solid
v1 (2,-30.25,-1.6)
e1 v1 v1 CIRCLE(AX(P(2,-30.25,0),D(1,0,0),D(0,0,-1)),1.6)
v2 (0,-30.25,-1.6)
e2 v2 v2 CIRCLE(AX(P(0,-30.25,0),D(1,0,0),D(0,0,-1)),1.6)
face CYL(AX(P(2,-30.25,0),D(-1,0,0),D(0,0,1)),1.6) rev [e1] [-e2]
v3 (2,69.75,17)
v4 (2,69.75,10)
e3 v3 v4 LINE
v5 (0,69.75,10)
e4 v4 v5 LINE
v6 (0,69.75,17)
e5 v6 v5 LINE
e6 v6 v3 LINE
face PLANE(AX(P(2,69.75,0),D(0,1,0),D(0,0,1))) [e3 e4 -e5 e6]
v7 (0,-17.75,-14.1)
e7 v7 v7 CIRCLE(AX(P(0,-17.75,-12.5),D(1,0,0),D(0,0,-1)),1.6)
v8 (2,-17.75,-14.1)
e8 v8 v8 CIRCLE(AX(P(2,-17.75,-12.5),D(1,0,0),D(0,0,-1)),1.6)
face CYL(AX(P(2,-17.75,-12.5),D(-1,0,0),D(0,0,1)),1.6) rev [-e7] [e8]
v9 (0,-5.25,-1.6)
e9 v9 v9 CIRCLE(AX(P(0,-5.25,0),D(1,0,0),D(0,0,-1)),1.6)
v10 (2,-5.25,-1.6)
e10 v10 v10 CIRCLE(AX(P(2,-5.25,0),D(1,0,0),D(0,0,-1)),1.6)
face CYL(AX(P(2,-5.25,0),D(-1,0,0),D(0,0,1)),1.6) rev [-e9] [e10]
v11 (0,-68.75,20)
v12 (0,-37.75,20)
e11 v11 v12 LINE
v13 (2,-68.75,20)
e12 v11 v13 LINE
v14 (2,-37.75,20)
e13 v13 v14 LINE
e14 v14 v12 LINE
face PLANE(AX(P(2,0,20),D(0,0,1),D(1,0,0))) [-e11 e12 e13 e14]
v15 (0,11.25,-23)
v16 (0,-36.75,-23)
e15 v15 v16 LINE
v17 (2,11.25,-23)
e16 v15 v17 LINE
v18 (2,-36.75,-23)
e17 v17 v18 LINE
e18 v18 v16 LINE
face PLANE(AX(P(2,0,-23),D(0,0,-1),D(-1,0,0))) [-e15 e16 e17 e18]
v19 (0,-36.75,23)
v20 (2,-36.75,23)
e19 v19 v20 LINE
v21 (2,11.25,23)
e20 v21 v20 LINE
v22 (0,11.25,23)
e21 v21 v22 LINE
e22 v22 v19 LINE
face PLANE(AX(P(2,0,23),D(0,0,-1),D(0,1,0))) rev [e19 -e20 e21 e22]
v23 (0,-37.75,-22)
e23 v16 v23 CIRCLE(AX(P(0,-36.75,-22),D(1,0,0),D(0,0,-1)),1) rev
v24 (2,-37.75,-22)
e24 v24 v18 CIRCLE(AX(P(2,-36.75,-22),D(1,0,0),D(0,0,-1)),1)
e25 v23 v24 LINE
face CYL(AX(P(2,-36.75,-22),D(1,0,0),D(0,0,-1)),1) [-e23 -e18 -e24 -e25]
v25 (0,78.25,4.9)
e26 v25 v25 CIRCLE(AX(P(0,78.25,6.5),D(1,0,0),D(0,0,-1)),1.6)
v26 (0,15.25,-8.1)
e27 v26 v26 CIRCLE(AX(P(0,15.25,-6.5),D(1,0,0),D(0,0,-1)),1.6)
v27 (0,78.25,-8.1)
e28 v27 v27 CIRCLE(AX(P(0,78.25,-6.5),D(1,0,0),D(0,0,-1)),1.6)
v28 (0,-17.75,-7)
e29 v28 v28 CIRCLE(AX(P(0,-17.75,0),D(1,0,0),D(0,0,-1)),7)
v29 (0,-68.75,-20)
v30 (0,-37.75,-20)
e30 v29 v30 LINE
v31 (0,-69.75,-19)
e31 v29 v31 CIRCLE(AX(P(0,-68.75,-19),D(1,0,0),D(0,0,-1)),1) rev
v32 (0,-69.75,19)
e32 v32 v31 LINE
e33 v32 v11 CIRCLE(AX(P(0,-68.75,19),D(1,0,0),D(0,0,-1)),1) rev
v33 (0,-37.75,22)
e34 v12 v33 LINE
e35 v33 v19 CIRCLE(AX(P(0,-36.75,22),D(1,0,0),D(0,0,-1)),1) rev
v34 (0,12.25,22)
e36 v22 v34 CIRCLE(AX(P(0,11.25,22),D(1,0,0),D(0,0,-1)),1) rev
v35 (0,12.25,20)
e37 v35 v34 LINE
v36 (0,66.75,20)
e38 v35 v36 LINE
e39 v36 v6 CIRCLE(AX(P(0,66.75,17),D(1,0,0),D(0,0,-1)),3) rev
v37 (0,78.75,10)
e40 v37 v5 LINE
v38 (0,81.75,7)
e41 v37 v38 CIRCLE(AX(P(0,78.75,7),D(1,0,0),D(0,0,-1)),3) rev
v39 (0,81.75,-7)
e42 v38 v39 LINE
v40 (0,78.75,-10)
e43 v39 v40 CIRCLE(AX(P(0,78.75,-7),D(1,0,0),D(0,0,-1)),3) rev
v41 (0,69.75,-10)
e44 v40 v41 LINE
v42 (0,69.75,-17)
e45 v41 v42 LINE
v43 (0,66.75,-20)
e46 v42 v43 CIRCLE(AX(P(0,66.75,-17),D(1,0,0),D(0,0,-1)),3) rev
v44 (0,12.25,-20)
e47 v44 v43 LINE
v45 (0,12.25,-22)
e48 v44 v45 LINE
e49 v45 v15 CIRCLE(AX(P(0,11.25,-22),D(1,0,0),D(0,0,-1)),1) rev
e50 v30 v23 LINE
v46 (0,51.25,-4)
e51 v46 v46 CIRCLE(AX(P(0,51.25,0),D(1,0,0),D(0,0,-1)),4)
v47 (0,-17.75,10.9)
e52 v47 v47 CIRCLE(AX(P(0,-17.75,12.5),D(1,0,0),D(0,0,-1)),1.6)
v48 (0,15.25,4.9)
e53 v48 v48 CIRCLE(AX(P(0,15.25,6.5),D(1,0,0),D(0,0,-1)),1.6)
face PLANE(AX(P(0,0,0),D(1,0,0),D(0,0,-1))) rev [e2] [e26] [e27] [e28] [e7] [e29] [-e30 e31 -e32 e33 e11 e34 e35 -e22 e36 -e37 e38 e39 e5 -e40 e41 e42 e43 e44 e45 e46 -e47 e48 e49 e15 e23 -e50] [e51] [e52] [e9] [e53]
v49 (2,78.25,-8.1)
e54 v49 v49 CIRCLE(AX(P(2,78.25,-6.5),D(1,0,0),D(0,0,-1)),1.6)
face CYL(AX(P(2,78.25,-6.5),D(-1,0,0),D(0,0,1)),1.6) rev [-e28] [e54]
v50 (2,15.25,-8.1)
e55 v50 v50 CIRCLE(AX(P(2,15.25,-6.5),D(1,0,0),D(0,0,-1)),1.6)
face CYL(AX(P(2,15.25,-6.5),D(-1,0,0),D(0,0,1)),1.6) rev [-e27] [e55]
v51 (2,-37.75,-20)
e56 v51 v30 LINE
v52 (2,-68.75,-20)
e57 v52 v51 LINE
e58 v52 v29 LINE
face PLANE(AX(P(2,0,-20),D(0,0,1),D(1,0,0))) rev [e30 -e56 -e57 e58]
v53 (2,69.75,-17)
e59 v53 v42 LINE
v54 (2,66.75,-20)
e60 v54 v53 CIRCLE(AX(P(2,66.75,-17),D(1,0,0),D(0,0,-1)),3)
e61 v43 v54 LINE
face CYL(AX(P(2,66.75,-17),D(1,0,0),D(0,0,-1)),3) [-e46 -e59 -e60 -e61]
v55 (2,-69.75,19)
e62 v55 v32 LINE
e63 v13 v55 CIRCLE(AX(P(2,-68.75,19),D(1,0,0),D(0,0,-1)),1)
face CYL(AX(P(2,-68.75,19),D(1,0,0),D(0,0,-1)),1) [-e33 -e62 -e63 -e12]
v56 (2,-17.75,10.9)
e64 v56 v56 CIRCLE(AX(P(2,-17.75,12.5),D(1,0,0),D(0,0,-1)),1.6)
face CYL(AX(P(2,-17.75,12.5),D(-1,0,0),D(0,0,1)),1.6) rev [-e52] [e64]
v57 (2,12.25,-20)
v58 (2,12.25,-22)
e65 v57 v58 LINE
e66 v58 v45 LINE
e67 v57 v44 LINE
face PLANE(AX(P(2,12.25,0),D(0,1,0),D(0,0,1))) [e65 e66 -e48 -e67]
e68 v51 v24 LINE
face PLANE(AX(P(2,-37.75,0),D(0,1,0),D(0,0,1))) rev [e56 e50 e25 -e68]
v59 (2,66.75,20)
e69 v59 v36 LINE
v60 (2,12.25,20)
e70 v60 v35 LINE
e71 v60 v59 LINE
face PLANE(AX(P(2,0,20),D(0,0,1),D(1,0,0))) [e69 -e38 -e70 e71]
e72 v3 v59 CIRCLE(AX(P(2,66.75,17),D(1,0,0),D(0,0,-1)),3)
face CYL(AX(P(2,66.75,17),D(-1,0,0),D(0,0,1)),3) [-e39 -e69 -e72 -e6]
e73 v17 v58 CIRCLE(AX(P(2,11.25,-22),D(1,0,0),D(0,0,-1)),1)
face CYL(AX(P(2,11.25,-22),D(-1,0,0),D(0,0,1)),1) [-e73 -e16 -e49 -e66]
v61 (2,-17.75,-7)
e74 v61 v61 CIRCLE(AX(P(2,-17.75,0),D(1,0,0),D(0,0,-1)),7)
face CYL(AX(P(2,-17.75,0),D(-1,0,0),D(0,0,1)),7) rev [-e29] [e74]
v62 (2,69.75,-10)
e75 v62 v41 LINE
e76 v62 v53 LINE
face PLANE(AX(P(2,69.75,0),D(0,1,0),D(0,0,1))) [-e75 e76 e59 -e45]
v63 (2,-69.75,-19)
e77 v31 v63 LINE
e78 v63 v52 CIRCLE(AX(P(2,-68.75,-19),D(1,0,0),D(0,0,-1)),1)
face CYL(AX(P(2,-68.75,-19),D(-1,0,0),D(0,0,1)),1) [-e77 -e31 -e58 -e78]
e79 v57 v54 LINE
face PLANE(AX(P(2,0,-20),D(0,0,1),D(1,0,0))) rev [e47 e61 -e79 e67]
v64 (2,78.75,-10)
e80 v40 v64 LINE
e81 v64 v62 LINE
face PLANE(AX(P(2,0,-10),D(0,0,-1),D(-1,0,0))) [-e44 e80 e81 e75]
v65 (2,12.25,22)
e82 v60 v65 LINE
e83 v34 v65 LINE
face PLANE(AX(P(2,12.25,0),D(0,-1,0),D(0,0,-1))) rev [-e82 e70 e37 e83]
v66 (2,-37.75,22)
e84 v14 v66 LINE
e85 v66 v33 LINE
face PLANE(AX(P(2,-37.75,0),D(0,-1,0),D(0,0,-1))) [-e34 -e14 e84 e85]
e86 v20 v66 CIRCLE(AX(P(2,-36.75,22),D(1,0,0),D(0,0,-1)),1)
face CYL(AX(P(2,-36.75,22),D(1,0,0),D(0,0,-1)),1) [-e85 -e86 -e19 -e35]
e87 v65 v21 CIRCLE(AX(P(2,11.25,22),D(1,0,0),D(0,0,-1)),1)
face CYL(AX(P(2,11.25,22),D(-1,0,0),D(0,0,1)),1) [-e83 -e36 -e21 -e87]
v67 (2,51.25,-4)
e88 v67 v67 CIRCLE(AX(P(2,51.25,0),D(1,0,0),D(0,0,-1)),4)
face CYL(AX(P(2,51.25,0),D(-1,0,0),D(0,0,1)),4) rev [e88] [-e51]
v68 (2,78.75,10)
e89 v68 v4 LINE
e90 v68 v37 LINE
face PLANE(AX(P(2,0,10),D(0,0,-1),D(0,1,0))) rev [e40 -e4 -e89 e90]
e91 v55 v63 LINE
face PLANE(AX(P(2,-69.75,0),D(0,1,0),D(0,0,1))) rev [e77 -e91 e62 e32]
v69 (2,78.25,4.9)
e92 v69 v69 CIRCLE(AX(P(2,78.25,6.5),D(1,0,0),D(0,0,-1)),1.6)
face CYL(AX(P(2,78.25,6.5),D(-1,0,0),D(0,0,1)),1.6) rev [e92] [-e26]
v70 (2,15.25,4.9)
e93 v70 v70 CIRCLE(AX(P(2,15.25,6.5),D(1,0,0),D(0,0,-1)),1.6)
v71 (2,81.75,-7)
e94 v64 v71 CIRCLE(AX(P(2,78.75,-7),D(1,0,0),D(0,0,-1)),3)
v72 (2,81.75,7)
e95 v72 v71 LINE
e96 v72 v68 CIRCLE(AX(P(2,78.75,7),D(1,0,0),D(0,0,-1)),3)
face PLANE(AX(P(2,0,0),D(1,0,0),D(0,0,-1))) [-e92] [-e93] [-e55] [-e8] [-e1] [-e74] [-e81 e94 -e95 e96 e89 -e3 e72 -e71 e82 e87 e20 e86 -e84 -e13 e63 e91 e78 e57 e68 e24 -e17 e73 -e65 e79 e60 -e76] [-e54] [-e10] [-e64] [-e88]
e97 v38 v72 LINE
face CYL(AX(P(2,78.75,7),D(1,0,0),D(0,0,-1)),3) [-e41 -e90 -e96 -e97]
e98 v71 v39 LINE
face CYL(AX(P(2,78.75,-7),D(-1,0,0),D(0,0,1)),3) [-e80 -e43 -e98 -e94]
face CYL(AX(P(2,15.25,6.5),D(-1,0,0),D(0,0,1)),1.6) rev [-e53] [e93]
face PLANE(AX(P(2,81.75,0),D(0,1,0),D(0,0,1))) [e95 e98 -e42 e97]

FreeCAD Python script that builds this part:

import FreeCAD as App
import Part
import Sketcher

V = App.Vector


def edges_at(feature, points):
    """Names of the edges that pass closest to the given points."""
    edges = feature.Shape.Edges
    near = lambda p: min(range(len(edges)), key=lambda i: edges[i].distToShape(Part.Vertex(*p))[0])
    return sorted({f"Edge{near(p) + 1}" for p in points})


def add_polygon(sketch, points):
    """Adds a closed chain of lines whose ends are joined by coincident constraints."""
    first, n = sketch.GeometryCount, len(points)
    for a, b in zip(points, points[1:] + points[:1]):
        sketch.addGeometry(Part.LineSegment(App.Vector(*a, 0), App.Vector(*b, 0)), False)
    for i in range(n):
        sketch.addConstraint(Sketcher.Constraint("Coincident", first + i, 2, first + (i + 1) % n, 1))

doc = App.newDocument("Part")
body = doc.addObject("PartDesign::Body", "Body")

sketch1 = body.newObject("Sketcher::SketchObject", "Sketch")
sketch1.AttachmentSupport = (doc.getObject("YZ_Plane"), [""])
sketch1.MapMode = "FlatFace"
add_polygon(sketch1, [(-37.8, 20), (-69.8, 20), (-69.8, -20), (-37.8, -20), (-37.8, -23), (12.2, -23), (12.2, -20), (69.8, -20), (69.8, -10), (81.8, -10), (81.8, 10), (69.8, 10), (69.8, 20), (12.2, 20), (12.2, 23), (-37.8, 23)])
sketch1.addGeometry(Part.Circle(V(-17.8, 12.5, 0), V(0, 0, 1), 1.6), False)
sketch1.addGeometry(Part.Circle(V(-30.2, 0, 0), V(0, 0, 1), 1.6), False)
sketch1.addGeometry(Part.Circle(V(-17.8, 0, 0), V(0, 0, 1), 7), False)
sketch1.addGeometry(Part.Circle(V(-17.8, -12.5, 0), V(0, 0, 1), 1.6), False)
sketch1.addGeometry(Part.Circle(V(-5.2, 0, 0), V(0, 0, 1), 1.6), False)
sketch1.addGeometry(Part.Circle(V(15.2, 6.5, 0), V(0, 0, 1), 1.6), False)
sketch1.addGeometry(Part.Circle(V(15.2, -6.5, 0), V(0, 0, 1), 1.6), False)
sketch1.addGeometry(Part.Circle(V(51.2, 0, 0), V(0, 0, 1), 4), False)
sketch1.addGeometry(Part.Circle(V(78.2, -6.5, 0), V(0, 0, 1), 1.6), False)
sketch1.addGeometry(Part.Circle(V(78.2, 6.5, 0), V(0, 0, 1), 1.6), False)
sketch1.addConstraint([
    Sketcher.Constraint("Horizontal", 0),
    Sketcher.Constraint("Vertical", 1),
    Sketcher.Constraint("Horizontal", 2),
    Sketcher.Constraint("Vertical", 3),
    Sketcher.Constraint("Horizontal", 4),
    Sketcher.Constraint("Vertical", 5),
    Sketcher.Constraint("Horizontal", 6),
    Sketcher.Constraint("Vertical", 7),
    Sketcher.Constraint("Horizontal", 8),
    Sketcher.Constraint("Vertical", 9),
    Sketcher.Constraint("Horizontal", 10),
    Sketcher.Constraint("Vertical", 11),
    Sketcher.Constraint("Horizontal", 12),
    Sketcher.Constraint("Vertical", 13),
    Sketcher.Constraint("Horizontal", 14),
    Sketcher.Constraint("Vertical", 15),
    Sketcher.Constraint("Equal", 16, 17),
    Sketcher.Constraint("Equal", 17, 19),
    Sketcher.Constraint("Equal", 19, 20),
    Sketcher.Constraint("Equal", 20, 21),
    Sketcher.Constraint("Equal", 21, 22),
    Sketcher.Constraint("Equal", 22, 24),
    Sketcher.Constraint("Equal", 24, 25),
    Sketcher.Constraint("Symmetric", 0, 2, 6, 2, -1, 1),
    Sketcher.Constraint("Symmetric", 1, 2, 11, 2, -1, 1),
    Sketcher.Constraint("Symmetric", 16, 3, 19, 3, -1),
    Sketcher.Constraint("Symmetric", 21, 3, 22, 3, -1),
    Sketcher.Constraint("Symmetric", 24, 3, 25, 3, -1),
    Sketcher.Constraint("Symmetric", 5, 2, 12, 2, -1),
    Sketcher.Constraint("Symmetric", 3, 2, 14, 2, -1),
    Sketcher.Constraint("PointOnObject", 17, 3, -1),
    Sketcher.Constraint("PointOnObject", 18, 3, -1),
    Sketcher.Constraint("PointOnObject", 20, 3, -1),
    Sketcher.Constraint("PointOnObject", 23, 3, -1),
    Sketcher.Constraint("Horizontal", 22, 3, 24, 3),
    Sketcher.Constraint("Vertical", 16, 3, 18, 3),
    Sketcher.Constraint("Equal", 7, 11),
    Sketcher.Constraint("Diameter", 18, 14.0),
    Sketcher.Constraint("Diameter", 23, 8.0),
    Sketcher.Constraint("Diameter", 16, 3.2),
    Sketcher.Constraint("DistanceX", 0, 2, 0, 1, 32.0),
    Sketcher.Constraint("DistanceX", 4, 1, 4, 2, 50.0),
    Sketcher.Constraint("DistanceX", 8, 1, 8, 2, 12.0),
    Sketcher.Constraint("DistanceY", 1, 2, 1, 1, 40.0),
    Sketcher.Constraint("DistanceY", 3, 2, 3, 1, 3.0),
    Sketcher.Constraint("DistanceY", 7, 1, 7, 2, 10.0),
    Sketcher.Constraint("DistanceX", 6, 1, 6, 2, 57.5),
    Sketcher.Constraint("DistanceY", 19, 3, 16, 3, 25.0),
    Sketcher.Constraint("DistanceX", 17, 3, 20, 3, 25.0),
    Sketcher.Constraint("DistanceX", 16, 3, 21, 3, 33.0),
    Sketcher.Constraint("DistanceY", 21, 3, 16, 3, 6.0),
    Sketcher.Constraint("DistanceX", 21, 3, 23, 3, 36.0),
    Sketcher.Constraint("DistanceX", 23, 3, 24, 3, 27.0),
    Sketcher.Constraint("DistanceX", 0, 2, 16, 3, 52.0),
    Sketcher.Constraint("DistanceX", 17, 3, 16, 3, 12.5),
])
pad1 = body.newObject("PartDesign::Pad", "Pad")
pad1.Profile = sketch1
pad1.Length = 2
doc.recompute()

fillet = body.newObject("PartDesign::Fillet", "Fillet")
fillet.Base = (pad1, edges_at(pad1, [
    (1, 69.75, 20),
    (1, 81.75, 10),
    (1, 81.75, -10),
    (1, 69.75, -20),
]))
fillet.Radius = 3
doc.recompute()

fillet2 = body.newObject("PartDesign::Fillet", "Fillet001")
fillet2.Base = (fillet, edges_at(fillet, [
    (1, -69.75, 20),
    (1, -37.75, 23),
    (1, 12.25, 23),
    (1, 12.25, -23),
    (1, -37.75, -23),
    (1, -69.75, -20),
]))
fillet2.Radius = 1

doc.recompute()
